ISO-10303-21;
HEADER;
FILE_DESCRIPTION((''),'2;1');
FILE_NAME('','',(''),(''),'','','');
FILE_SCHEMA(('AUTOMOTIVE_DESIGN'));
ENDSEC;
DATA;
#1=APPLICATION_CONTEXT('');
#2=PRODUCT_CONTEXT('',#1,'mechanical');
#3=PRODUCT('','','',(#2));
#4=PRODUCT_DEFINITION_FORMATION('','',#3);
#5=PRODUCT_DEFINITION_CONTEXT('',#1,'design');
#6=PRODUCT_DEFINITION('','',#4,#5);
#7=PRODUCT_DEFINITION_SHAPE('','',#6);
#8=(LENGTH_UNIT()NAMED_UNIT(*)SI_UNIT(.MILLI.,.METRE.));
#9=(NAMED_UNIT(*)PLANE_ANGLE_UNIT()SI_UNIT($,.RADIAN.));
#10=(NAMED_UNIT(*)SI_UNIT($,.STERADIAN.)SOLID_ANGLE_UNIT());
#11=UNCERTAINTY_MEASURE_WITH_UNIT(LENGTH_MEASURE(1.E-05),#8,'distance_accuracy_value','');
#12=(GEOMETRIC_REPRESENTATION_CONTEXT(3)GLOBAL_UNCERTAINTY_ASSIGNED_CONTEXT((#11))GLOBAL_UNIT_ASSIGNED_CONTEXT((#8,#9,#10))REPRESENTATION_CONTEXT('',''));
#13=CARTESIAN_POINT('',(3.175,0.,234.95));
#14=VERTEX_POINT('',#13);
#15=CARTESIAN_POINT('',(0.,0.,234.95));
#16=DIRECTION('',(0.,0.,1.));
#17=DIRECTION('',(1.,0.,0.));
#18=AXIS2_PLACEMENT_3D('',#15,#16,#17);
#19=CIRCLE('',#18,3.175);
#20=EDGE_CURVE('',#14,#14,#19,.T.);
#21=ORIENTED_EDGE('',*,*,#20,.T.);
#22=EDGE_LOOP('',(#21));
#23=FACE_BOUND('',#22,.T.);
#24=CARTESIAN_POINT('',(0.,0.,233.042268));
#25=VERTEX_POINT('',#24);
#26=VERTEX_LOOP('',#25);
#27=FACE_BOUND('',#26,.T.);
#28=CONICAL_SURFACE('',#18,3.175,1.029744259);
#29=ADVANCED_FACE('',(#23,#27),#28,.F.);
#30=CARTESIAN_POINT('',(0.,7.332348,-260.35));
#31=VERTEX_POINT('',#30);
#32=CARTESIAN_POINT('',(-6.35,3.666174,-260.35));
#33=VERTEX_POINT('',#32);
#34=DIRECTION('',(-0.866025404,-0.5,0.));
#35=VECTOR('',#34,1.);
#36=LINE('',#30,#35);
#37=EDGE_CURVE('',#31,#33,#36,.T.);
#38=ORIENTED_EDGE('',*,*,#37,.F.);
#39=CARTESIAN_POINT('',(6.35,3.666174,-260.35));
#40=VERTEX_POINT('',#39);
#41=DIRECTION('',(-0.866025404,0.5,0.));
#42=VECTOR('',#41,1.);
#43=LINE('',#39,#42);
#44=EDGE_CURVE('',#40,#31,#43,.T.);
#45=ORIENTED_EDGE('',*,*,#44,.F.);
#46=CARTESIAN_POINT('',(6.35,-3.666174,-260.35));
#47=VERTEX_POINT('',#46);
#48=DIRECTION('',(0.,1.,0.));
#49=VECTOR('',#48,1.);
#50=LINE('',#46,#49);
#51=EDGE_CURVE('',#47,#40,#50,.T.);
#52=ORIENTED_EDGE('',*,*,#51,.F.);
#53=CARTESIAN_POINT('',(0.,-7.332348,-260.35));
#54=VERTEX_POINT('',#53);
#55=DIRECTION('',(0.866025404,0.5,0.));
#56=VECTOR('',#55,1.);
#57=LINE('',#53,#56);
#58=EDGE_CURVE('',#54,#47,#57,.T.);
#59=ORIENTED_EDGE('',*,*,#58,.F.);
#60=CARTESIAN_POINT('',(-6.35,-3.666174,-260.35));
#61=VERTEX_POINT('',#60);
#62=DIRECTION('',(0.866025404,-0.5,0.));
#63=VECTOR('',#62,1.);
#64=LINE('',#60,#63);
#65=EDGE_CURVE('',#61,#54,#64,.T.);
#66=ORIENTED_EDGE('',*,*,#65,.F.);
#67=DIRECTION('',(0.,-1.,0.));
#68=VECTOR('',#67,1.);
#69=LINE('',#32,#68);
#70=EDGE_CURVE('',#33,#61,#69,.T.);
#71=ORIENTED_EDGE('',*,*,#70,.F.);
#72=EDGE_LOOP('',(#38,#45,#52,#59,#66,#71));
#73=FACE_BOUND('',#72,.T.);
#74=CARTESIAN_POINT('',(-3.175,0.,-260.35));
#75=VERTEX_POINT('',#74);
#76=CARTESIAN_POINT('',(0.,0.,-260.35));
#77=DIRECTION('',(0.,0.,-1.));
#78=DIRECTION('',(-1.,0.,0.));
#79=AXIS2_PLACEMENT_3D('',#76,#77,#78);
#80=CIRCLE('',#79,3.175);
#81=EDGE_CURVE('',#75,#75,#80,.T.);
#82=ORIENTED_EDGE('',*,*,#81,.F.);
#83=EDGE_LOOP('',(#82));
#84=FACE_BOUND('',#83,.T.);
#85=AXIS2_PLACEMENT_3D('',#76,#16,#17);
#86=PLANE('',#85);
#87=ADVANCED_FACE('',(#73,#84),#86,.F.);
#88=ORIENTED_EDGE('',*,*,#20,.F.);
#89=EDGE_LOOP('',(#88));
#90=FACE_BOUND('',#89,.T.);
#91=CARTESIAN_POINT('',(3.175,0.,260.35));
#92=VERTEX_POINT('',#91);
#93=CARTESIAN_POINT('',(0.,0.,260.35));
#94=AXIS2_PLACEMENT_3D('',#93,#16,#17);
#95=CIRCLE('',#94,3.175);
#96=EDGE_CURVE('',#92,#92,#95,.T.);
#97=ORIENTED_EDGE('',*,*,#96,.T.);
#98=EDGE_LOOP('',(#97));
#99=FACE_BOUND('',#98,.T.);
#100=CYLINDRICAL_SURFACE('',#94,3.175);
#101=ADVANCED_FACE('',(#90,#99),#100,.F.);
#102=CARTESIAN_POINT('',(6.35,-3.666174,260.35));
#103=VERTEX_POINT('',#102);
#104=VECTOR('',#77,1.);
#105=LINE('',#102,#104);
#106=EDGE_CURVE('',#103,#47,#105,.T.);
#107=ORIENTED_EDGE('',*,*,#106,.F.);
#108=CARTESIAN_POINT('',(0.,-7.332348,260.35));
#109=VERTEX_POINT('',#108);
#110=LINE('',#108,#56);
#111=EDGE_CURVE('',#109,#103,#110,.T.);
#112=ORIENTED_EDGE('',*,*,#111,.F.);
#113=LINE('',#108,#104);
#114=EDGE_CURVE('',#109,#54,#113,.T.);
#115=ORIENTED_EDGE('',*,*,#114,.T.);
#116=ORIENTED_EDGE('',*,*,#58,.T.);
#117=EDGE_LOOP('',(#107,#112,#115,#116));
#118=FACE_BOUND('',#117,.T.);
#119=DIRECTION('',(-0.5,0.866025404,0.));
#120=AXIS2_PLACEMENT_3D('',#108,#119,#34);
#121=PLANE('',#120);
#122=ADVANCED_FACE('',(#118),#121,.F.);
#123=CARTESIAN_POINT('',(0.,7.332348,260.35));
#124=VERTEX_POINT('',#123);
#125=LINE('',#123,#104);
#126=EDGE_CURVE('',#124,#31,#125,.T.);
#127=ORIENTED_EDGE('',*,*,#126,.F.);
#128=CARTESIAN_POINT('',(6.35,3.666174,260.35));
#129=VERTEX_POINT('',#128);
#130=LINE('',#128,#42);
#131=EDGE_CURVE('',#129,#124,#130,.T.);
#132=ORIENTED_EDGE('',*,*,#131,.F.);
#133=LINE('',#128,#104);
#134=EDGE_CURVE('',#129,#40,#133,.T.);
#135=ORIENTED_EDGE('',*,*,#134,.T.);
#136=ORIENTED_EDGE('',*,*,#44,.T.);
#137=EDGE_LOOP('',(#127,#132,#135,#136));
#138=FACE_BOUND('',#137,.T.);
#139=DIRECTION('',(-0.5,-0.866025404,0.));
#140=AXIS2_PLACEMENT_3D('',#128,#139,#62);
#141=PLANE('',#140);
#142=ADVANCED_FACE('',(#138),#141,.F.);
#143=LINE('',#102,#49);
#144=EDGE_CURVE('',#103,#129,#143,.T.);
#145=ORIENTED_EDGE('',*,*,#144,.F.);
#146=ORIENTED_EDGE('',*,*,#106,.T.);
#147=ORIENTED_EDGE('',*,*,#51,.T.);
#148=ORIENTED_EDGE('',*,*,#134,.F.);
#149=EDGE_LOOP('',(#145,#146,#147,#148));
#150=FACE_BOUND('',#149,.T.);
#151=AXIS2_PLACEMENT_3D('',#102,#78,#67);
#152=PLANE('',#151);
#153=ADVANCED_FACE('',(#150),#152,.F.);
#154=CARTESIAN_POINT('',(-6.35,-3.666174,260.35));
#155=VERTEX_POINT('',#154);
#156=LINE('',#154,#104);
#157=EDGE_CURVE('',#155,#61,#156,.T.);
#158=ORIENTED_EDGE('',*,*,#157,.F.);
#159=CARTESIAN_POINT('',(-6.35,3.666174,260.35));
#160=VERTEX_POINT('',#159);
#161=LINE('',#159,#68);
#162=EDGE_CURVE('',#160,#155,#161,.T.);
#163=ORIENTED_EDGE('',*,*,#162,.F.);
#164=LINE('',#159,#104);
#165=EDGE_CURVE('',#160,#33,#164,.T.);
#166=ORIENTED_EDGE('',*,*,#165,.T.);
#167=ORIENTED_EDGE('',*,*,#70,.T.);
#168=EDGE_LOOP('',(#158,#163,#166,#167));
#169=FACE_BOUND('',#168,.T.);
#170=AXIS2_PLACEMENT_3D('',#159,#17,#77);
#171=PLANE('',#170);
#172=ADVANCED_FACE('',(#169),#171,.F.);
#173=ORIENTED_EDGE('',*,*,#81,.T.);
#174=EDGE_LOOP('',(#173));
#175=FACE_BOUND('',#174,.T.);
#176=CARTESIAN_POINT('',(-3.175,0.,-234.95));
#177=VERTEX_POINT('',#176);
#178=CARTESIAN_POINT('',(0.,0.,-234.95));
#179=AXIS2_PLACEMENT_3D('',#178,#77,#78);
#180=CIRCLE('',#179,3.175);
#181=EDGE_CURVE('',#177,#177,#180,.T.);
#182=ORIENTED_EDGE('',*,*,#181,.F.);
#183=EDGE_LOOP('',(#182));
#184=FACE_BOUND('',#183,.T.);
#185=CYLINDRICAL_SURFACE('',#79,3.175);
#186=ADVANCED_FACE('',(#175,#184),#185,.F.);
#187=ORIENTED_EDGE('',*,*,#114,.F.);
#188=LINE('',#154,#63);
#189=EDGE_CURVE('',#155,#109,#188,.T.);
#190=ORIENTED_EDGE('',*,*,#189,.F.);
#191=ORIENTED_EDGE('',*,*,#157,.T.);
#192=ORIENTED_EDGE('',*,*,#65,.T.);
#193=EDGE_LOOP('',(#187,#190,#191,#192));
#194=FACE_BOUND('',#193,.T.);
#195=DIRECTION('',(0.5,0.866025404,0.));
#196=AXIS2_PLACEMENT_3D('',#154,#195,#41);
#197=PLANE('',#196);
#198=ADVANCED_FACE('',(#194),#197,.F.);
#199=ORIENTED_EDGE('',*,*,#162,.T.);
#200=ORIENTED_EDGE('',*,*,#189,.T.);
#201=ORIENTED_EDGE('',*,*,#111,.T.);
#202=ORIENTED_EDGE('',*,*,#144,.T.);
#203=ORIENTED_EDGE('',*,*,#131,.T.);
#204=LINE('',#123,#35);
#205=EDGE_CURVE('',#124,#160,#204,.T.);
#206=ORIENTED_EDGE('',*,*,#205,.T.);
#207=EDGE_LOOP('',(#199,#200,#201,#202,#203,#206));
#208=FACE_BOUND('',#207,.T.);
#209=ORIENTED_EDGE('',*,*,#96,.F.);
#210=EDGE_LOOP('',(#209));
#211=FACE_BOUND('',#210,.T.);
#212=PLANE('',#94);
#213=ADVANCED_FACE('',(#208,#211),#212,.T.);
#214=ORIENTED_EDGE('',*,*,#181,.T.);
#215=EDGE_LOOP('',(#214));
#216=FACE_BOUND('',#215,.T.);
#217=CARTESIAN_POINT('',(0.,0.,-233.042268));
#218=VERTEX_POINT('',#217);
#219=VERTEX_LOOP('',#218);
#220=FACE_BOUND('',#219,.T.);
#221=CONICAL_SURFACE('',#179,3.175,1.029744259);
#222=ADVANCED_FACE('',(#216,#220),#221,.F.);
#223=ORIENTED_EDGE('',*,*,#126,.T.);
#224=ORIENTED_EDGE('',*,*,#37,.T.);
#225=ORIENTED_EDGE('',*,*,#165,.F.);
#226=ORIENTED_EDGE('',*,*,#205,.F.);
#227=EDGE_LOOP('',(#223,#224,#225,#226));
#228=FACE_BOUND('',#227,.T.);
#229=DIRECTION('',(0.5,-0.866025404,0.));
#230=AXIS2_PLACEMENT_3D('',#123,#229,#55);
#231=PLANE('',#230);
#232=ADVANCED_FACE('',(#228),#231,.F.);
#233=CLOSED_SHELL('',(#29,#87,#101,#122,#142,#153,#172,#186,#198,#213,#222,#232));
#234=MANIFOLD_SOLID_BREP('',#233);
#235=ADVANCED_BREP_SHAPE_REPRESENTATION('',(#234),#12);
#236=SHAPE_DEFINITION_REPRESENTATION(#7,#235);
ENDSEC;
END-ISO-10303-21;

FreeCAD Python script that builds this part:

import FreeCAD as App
import Part
import Sketcher

V = App.Vector
Q = App.Units.Quantity


def add_polygon(sketch, points):
    """Adds a closed chain of lines whose ends are joined by coincident constraints."""
    first, n = sketch.GeometryCount, len(points)
    for a, b in zip(points, points[1:] + points[:1]):
        sketch.addGeometry(Part.LineSegment(App.Vector(*a, 0), App.Vector(*b, 0)), False)
    for i in range(n):
        sketch.addConstraint(Sketcher.Constraint("Coincident", first + i, 2, first + (i + 1) % n, 1))

doc = App.newDocument("Part")
body = doc.addObject("PartDesign::Body", "Body")

sketch1 = doc.addObject("Sketcher::SketchObject", "Sketch")
body.addObject(sketch1)
sketch1.AttachmentSupport = (doc.XY_Plane, [""])
sketch1.MapMode = "FlatFace"
add_polygon(sketch1, [(-6.35, -3.666174), (0, -7.332348), (6.35, -3.666174), (6.35, 3.666174), (0, 7.332348), (-6.35, 3.666174)])
sketch1.addConstraint([
    Sketcher.Constraint("Vertical", 2),
    Sketcher.Constraint("Vertical", 5),
    Sketcher.Constraint("Symmetric", 0, 2, 3, 2, -1, 1),
    Sketcher.Constraint("Symmetric", 1, 2, 4, 2, -1, 1),
    Sketcher.Constraint("PointOnObject", 0, 2, -2),
    Sketcher.Constraint("Parallel", 0, 3),
    Sketcher.Constraint("Horizontal", 2, 2, 4, 2),
    Sketcher.Constraint("Angle", 0, Q("-30 deg")),
    Sketcher.Constraint("DistanceX", 4, 2, 2, 2, Q("0.5 in")),
    Sketcher.Constraint("DistanceY", 2, 1, 2, 2, 7.332348),
])
pad1 = doc.addObject("PartDesign::Pad", "Pad")
body.addObject(pad1)
pad1.Profile = sketch1
pad1.Type = "TwoLengths"
pad1.Length = Q("10.25 in")
pad1.Length2 = Q("10.25 in")

sketch2 = doc.addObject("Sketcher::SketchObject", "Sketch001")
body.addObject(sketch2)
sketch2.AttachmentSupport = (doc.XY_Plane, [""])
sketch2.MapMode = "FlatFace"
sketch2.AttachmentOffset = App.Placement(V(0, 0, 10.25 * 25.4), App.Rotation())
sketch2.addGeometry(Part.Circle(V(0, 0, 0), V(0, 0, 1), 3.175), False)
sketch2.addConstraint([
    Sketcher.Constraint("Coincident", 0, 3, -1, 1),
    Sketcher.Constraint("Diameter", 0, Q("0.25 in")),
])
doc.recompute()
hole = doc.addObject("PartDesign::Hole", "Hole")
body.addObject(hole)
hole.Profile = sketch2
hole.ThreadType = "None"
hole.Diameter = Q("0.25 in")
hole.DepthType = "Dimension"
hole.Depth = Q("1 in")
hole.DrillPoint = "Angled"
hole.DrillPointAngle = 118

sketch3 = doc.addObject("Sketcher::SketchObject", "Sketch002")
body.addObject(sketch3)
sketch3.AttachmentSupport = (doc.XY_Plane, [""])
sketch3.MapMode = "FlatFace"
sketch3.AttachmentOffset = App.Placement(V(0, 0, -10.25 * 25.4), App.Rotation())
sketch3.addGeometry(Part.Circle(V(0, 0, 0), V(0, 0, 1), 3.175), False)
sketch3.addConstraint([
    Sketcher.Constraint("Coincident", 0, 3, -1, 1),
    Sketcher.Constraint("Diameter", 0, Q("0.25 in")),
])
doc.recompute()
hole2 = doc.addObject("PartDesign::Hole", "Hole001")
body.addObject(hole2)
hole2.Profile = sketch3
hole2.ThreadType = "None"
hole2.Diameter = Q("0.25 in")
hole2.DepthType = "Dimension"
hole2.Depth = Q("1 in")
hole2.DrillPoint = "Angled"
hole2.DrillPointAngle = 118
hole2.Reversed = True

doc.recompute()
